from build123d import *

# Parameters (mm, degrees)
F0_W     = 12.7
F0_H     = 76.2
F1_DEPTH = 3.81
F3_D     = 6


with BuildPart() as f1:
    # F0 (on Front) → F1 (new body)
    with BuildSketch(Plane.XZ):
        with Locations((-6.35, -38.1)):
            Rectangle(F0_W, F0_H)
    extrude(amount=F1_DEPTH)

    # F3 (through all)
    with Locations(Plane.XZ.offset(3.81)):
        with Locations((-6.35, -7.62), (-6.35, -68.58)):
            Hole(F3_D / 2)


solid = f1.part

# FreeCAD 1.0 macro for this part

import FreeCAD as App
import Part
import Sketcher
Q = App.Units.Quantity

doc = App.newDocument("Part")
body = doc.addObject("PartDesign::Body", "Body")

# Sketch on XZ plane
sketch1 = doc.addObject("Sketcher::SketchObject", "Sketch")
body.addObject(sketch1)
sketch1.AttachmentSupport = (doc.XZ_Plane, [""])
sketch1.MapMode = "FlatFace"
sketch1.addGeometry([
    Part.LineSegment(App.Vector(-13, 0, 0), App.Vector(-13, -76, 0)),
    Part.LineSegment(App.Vector(-13, -76, 0), App.Vector(0, -76, 0)),
    Part.LineSegment(App.Vector(0, -76, 0), App.Vector(0, 0, 0)),
    Part.LineSegment(App.Vector(0, 0, 0), App.Vector(-13, 0, 0)),
], False)
sketch1.addConstraint([
    Sketcher.Constraint("Coincident", 0, 2, 1, 1),
    Sketcher.Constraint("Coincident", 1, 2, 2, 1),
    Sketcher.Constraint("Coincident", 2, 2, 3, 1),
    Sketcher.Constraint("Coincident", 3, 2, 0, 1),
    Sketcher.Constraint("Vertical", 0),
    Sketcher.Constraint("Horizontal", 1),
    Sketcher.Constraint("Vertical", 2),
    Sketcher.Constraint("Horizontal", 3),
    Sketcher.Constraint("Coincident", 2, 2, -1, 1),
    Sketcher.Constraint("DistanceY", 0, 2, 0, 1, Q("3 in")),
    Sketcher.Constraint("DistanceX", 1, 1, 1, 2, Q("0.5 in")),
])
pad1 = doc.addObject("PartDesign::Pad", "Pad")
body.addObject(pad1)
pad1.Profile = sketch1
pad1.Length = Q("0.15 in")

# Sketch on XZ plane
sketch2 = doc.addObject("Sketcher::SketchObject", "Sketch001")
body.addObject(sketch2)
sketch2.AttachmentSupport = (doc.XZ_Plane, [""])
sketch2.MapMode = "FlatFace"
sketch2.AttachmentOffset = App.Placement(App.Vector(0, 0, 0.15 * 25.4), App.Rotation())
sketch2.addGeometry([
    Part.Circle(App.Vector(-6.3, -7.6, 0), App.Vector(0, 0, 1), 3),
    Part.Circle(App.Vector(-6.3, -68.6, 0), App.Vector(0, 0, 1), 3),
], False)
sketch2.addConstraint([
    Sketcher.Constraint("Equal", 0, 1),
    Sketcher.Constraint("Vertical", 0, 3, 1, 3),
    Sketcher.Constraint("DistanceY", 0, 3, -1, 1, Q("0.3 in")),
    Sketcher.Constraint("DistanceY", 1, 3, -1, 1, Q("2.7 in")),
    Sketcher.Constraint("Diameter", 0, 6.0),
    Sketcher.Constraint("DistanceX", 0, 3, -1, 1, Q("0.25 in")),
])
doc.recompute()
hole = doc.addObject("PartDesign::Hole", "Hole")
body.addObject(hole)
hole.Profile = sketch2
hole.ThreadType = "None"
hole.Diameter = 6
hole.DepthType = "ThroughAll"

doc.recompute()
